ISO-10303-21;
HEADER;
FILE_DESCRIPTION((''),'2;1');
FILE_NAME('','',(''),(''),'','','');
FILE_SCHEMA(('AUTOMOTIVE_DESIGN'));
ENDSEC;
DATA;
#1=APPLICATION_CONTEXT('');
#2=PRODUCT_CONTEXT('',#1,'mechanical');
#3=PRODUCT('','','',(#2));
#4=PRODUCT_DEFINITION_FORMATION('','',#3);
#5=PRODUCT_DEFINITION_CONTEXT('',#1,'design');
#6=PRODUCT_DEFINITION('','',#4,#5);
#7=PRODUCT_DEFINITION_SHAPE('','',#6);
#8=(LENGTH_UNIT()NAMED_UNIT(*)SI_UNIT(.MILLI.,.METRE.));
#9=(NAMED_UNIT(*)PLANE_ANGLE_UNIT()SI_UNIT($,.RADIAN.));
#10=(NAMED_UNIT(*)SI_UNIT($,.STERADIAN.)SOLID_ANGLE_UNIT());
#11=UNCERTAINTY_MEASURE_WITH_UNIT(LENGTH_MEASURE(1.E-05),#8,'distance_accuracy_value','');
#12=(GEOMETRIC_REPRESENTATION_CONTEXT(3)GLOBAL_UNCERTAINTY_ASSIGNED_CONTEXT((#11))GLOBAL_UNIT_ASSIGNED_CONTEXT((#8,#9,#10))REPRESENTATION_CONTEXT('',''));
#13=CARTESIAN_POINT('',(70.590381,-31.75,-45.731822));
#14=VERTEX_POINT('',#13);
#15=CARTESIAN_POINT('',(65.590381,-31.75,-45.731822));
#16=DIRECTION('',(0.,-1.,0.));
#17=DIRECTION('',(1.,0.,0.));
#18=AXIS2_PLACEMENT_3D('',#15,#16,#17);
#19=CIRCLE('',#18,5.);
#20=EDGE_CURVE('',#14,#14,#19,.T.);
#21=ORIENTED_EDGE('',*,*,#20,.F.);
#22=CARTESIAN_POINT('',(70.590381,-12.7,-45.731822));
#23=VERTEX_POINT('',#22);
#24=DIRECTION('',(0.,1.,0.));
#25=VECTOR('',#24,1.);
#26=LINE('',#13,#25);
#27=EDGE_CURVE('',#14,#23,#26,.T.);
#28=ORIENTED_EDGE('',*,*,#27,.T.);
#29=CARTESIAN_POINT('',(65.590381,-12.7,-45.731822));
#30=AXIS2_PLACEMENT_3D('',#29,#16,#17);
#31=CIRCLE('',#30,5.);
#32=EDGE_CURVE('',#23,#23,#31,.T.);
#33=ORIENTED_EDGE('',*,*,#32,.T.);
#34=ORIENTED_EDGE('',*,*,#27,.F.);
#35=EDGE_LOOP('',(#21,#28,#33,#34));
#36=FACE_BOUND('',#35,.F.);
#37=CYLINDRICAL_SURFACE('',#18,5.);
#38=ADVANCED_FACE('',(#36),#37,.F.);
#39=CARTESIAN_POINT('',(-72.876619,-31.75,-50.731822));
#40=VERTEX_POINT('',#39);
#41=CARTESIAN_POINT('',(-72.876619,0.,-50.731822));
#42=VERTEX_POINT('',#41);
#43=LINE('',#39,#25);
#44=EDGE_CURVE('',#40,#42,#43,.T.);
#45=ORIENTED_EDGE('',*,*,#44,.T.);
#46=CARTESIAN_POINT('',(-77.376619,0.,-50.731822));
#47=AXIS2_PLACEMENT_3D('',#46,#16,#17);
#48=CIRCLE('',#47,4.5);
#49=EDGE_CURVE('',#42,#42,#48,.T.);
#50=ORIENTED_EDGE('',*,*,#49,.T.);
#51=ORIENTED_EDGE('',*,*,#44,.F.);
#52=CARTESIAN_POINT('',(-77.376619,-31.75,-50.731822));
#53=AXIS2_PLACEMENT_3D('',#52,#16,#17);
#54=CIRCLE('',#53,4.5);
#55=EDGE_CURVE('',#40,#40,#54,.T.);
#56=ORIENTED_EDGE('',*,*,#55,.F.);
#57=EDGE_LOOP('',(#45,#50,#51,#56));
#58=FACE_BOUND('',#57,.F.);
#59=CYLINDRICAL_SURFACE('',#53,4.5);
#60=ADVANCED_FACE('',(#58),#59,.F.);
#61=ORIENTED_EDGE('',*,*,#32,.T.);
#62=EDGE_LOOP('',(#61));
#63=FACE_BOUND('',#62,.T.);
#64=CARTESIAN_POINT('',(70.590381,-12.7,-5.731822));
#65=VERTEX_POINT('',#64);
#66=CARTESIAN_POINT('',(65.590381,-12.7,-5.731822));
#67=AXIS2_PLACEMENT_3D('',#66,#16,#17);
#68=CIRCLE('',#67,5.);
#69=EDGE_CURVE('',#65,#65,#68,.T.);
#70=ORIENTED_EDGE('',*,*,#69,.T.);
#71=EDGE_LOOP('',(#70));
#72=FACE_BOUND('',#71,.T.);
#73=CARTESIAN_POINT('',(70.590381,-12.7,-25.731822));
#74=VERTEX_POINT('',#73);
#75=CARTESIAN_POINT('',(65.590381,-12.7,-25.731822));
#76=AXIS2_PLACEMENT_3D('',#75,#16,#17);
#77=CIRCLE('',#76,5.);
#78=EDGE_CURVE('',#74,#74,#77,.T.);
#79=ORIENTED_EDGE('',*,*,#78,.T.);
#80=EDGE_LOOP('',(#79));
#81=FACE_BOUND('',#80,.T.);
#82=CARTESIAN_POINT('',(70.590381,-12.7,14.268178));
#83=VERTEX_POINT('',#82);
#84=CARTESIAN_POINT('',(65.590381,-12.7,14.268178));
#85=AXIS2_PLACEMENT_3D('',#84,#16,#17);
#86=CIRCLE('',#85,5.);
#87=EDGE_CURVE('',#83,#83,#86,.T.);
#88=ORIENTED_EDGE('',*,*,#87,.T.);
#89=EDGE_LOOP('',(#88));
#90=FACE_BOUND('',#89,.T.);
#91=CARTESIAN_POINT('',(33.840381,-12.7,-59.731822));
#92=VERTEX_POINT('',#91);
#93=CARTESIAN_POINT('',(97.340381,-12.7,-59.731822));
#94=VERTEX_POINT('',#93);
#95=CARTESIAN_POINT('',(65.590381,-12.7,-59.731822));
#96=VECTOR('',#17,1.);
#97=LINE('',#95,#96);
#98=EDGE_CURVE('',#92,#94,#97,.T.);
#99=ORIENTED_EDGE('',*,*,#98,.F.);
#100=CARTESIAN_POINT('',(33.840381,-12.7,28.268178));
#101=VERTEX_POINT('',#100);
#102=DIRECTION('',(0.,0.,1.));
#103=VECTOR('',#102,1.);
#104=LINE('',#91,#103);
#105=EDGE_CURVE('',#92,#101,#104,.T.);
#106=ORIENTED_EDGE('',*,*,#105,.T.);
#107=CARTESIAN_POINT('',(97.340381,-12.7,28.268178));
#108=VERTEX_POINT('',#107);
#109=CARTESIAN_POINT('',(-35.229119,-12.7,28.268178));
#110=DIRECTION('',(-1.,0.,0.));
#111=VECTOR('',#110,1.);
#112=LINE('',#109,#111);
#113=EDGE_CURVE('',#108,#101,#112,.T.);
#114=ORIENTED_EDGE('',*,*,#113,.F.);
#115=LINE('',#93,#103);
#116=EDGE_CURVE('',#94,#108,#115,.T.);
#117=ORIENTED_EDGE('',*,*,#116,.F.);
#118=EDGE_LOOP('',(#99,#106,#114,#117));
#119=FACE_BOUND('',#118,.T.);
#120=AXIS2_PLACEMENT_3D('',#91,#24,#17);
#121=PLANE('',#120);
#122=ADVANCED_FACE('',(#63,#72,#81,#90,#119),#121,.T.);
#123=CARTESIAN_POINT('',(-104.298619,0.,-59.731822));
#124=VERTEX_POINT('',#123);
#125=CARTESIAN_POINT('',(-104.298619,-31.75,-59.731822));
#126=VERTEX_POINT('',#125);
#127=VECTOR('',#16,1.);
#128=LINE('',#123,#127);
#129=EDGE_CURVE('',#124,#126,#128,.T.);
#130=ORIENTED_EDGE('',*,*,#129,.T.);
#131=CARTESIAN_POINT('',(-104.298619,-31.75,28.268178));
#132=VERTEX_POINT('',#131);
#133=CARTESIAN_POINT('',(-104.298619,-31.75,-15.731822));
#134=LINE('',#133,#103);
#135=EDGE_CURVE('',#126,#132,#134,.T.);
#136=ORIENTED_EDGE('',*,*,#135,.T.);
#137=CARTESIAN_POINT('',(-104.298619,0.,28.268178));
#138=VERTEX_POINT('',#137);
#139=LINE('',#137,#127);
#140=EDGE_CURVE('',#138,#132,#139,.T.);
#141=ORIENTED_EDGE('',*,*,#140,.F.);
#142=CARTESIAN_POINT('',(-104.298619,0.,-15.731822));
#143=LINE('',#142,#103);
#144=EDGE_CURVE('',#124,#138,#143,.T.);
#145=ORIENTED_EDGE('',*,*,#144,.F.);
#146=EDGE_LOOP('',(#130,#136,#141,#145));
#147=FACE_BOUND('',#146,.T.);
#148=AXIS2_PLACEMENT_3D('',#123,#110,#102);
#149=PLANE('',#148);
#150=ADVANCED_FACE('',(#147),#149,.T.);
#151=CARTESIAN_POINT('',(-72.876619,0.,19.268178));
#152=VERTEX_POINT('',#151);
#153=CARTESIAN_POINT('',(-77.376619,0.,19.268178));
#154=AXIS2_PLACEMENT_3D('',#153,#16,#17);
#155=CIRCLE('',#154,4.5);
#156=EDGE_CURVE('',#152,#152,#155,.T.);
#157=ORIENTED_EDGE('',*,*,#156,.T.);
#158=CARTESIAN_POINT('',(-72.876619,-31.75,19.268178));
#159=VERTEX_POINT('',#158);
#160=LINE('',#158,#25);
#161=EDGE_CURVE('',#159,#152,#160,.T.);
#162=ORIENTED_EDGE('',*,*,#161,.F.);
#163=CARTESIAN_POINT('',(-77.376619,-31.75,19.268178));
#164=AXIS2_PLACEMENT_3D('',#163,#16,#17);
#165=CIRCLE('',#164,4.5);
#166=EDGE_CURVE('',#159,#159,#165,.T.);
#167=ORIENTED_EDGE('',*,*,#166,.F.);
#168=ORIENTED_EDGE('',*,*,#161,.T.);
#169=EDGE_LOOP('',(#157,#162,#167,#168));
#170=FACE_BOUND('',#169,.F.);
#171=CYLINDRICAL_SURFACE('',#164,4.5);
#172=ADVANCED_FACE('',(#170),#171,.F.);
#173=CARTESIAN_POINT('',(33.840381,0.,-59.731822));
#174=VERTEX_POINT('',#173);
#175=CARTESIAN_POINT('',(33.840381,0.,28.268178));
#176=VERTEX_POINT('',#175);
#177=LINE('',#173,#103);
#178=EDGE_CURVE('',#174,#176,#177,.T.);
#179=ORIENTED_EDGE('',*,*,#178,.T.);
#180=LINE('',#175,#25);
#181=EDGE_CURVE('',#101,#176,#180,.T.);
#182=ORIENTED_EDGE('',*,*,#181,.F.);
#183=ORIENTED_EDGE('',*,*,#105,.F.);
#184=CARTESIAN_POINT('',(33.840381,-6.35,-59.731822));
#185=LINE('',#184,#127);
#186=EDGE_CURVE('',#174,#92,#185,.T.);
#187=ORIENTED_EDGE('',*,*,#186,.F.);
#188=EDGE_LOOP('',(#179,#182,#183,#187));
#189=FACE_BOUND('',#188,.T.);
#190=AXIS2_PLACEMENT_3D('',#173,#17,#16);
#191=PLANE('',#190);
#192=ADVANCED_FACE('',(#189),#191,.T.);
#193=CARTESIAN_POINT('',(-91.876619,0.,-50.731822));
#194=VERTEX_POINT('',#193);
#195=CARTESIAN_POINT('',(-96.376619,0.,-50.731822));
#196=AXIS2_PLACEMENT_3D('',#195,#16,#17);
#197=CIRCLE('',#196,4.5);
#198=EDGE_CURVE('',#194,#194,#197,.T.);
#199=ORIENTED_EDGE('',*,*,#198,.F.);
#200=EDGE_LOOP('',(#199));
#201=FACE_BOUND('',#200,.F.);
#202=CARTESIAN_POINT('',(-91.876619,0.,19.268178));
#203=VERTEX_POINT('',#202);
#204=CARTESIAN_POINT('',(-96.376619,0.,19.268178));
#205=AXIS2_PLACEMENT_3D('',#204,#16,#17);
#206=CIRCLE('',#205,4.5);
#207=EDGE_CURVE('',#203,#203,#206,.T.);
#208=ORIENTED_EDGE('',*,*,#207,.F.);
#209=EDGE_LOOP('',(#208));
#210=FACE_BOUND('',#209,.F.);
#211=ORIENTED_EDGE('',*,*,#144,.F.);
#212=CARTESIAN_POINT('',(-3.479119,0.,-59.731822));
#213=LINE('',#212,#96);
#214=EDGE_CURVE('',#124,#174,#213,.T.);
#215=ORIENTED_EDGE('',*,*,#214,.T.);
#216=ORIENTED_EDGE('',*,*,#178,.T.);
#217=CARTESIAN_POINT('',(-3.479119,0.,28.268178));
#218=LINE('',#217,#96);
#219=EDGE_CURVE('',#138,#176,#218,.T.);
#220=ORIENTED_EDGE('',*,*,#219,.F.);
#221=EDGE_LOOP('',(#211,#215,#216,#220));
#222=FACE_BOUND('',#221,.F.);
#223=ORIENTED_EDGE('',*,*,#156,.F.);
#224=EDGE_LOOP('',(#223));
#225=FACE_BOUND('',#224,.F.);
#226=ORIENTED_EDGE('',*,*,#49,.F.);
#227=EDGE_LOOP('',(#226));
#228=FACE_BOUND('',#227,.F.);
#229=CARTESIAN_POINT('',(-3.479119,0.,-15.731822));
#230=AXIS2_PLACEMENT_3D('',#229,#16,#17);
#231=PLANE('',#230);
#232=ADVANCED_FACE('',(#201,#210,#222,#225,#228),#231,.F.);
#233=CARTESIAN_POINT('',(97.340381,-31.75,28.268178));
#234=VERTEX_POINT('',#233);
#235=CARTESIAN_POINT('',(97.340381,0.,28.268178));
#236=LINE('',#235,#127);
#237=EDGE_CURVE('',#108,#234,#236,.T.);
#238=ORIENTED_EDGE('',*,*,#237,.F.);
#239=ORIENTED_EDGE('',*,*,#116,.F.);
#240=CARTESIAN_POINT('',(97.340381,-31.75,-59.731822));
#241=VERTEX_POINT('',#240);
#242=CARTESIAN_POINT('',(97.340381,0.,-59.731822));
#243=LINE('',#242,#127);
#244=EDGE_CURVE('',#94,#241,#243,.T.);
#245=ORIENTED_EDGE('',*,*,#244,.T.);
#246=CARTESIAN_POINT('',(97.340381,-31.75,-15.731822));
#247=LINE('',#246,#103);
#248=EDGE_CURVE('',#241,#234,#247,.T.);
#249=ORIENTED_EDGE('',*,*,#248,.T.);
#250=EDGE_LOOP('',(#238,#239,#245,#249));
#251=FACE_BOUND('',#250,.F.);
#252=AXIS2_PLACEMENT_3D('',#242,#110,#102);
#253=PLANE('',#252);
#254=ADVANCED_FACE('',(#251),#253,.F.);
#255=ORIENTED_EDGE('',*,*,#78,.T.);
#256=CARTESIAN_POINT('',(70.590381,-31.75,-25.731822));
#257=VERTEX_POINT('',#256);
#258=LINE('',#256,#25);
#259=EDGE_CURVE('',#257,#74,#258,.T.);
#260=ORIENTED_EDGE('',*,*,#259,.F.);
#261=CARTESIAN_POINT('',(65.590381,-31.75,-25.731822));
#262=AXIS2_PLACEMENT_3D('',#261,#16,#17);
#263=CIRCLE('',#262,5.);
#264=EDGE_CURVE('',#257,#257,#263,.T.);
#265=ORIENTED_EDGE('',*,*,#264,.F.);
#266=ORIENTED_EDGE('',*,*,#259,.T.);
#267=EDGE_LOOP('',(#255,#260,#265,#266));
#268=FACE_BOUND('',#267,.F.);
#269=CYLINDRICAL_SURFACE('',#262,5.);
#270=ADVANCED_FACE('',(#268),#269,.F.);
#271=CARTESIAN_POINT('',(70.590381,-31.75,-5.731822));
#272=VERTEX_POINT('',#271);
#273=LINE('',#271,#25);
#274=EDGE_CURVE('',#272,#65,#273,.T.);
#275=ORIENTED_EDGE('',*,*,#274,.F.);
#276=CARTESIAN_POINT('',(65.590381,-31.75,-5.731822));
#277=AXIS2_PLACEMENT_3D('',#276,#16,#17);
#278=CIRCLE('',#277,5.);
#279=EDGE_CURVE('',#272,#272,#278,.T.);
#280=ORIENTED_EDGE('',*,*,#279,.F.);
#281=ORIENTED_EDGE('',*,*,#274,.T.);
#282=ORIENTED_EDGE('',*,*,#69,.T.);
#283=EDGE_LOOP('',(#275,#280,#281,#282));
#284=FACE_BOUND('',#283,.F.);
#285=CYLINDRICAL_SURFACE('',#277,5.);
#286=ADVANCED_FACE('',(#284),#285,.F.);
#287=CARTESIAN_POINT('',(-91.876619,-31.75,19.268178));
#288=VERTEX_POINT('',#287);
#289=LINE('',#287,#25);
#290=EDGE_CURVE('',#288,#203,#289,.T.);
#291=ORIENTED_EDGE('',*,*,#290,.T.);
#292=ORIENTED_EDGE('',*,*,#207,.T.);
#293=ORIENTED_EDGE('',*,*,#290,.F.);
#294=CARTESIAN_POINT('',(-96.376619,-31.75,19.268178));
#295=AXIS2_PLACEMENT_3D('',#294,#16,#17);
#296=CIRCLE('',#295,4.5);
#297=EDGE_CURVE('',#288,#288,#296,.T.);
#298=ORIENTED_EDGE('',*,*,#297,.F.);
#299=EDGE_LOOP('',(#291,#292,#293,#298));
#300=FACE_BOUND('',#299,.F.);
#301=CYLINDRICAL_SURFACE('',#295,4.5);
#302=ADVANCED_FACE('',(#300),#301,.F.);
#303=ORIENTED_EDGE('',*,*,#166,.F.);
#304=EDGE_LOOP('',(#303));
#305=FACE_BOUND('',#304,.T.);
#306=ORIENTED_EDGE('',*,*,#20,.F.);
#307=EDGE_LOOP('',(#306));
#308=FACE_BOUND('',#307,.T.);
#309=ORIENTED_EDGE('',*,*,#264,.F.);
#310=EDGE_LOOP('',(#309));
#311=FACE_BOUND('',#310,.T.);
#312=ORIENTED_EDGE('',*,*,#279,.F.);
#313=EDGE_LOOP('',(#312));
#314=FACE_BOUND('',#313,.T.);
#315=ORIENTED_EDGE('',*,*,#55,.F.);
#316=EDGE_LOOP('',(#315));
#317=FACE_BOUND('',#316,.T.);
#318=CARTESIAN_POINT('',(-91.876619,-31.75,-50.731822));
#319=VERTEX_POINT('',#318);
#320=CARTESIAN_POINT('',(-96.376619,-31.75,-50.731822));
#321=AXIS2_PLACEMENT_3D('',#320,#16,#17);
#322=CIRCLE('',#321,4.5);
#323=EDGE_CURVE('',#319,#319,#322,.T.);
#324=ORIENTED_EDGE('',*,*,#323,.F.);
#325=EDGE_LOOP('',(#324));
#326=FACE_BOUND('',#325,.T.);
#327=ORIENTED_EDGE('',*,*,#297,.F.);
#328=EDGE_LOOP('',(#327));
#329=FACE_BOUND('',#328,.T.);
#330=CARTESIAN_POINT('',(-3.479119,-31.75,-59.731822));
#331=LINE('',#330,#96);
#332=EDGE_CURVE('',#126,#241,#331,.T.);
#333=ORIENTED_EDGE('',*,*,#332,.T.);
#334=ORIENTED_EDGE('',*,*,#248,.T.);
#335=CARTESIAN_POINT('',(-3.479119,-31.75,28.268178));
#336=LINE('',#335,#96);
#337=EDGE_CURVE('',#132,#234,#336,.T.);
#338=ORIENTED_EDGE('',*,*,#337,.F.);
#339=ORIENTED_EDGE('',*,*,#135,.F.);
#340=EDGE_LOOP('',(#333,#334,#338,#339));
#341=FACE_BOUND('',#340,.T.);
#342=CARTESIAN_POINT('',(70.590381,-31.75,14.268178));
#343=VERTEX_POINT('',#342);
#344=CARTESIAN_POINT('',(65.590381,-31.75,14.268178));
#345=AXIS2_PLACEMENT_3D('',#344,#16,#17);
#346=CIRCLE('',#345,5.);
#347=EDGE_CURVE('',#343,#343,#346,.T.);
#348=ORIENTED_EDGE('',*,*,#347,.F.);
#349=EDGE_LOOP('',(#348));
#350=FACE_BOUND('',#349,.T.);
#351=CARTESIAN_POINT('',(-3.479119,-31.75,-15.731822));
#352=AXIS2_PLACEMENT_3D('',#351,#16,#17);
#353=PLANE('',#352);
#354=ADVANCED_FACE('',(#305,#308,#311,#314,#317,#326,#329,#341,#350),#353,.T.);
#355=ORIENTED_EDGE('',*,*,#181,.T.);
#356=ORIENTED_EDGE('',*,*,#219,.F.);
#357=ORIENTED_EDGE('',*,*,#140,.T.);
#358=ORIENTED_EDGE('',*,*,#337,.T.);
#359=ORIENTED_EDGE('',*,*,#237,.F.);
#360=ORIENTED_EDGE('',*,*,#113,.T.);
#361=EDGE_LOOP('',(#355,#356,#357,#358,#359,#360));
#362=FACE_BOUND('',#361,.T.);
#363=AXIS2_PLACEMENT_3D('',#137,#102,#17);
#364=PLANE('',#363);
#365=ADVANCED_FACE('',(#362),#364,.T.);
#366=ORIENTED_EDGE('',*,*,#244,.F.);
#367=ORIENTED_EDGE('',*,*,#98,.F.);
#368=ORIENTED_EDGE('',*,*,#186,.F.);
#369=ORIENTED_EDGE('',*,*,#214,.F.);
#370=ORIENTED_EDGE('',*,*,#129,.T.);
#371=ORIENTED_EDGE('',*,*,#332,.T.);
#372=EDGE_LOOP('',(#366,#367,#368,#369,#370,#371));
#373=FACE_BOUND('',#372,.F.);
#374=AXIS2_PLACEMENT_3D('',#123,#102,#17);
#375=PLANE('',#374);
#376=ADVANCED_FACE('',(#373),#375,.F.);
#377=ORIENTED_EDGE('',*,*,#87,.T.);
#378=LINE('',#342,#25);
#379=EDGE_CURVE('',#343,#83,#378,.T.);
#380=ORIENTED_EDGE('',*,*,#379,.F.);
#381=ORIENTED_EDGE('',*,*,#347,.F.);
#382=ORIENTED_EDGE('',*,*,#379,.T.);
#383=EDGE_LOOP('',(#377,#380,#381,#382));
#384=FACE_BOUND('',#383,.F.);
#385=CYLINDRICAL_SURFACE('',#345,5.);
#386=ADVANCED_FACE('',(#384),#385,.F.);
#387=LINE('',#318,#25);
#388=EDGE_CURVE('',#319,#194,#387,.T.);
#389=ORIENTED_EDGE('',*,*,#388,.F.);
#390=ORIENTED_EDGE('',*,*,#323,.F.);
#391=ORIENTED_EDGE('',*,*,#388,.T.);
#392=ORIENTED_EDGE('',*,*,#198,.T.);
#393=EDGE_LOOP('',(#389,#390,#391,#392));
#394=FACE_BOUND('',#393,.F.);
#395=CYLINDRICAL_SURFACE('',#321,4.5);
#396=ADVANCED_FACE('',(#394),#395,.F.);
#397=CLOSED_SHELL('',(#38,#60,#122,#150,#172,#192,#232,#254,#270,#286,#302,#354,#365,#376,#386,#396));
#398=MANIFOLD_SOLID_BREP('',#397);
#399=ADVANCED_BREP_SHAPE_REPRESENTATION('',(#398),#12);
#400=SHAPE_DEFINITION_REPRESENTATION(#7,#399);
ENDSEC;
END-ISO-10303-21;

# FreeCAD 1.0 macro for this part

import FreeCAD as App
import Part
import Sketcher
Q = App.Units.Quantity

doc = App.newDocument("Part")
body = doc.addObject("PartDesign::Body", "Body")

sketch1 = body.newObject("Sketcher::SketchObject", "Sketch")
sketch1.AttachmentSupport = (doc.getObject("XZ_Plane"), [""])
sketch1.MapMode = "FlatFace"
sketch1.addGeometry([
    Part.LineSegment(App.Vector(-104, 28, 0), App.Vector(-104, -60, 0)),
    Part.LineSegment(App.Vector(-104, -60, 0), App.Vector(97, -60, 0)),
    Part.LineSegment(App.Vector(97, -60, 0), App.Vector(97, 28, 0)),
    Part.LineSegment(App.Vector(97, 28, 0), App.Vector(-104, 28, 0)),
], False)
sketch1.addConstraint([
    Sketcher.Constraint("Coincident", 0, 2, 1, 1),
    Sketcher.Constraint("Coincident", 1, 2, 2, 1),
    Sketcher.Constraint("Coincident", 2, 2, 3, 1),
    Sketcher.Constraint("Coincident", 3, 2, 0, 1),
    Sketcher.Constraint("Vertical", 0),
    Sketcher.Constraint("Horizontal", 1),
    Sketcher.Constraint("Vertical", 2),
    Sketcher.Constraint("Horizontal", 3),
    Sketcher.Constraint("DistanceY", 0, 2, 0, 1, Q("88 mm")),
    Sketcher.Constraint("DistanceX", 1, 1, 1, 2, Q("201.639 mm")),
    Sketcher.Constraint("DistanceX", 0, 2, -1, 1, Q("104.298619 mm")),
    Sketcher.Constraint("DistanceY", 0, 2, -1, 1, Q("59.731822 mm")),
])
pad1 = body.newObject("PartDesign::Pad", "Pad")
pad1.Profile = sketch1
pad1.Length = 31.75

sketch2 = body.newObject("Sketcher::SketchObject", "Sketch001")
sketch2.AttachmentSupport = (doc.getObject("XY_Plane"), [""])
sketch2.MapMode = "FlatFace"
sketch2.AttachmentOffset = App.Placement(App.Vector(0, 0, -59.731822), App.Rotation())
sketch2.addGeometry([
    Part.LineSegment(App.Vector(34, -13, 0), App.Vector(34, 0, 0)),
    Part.LineSegment(App.Vector(34, 0, 0), App.Vector(97, 0, 0)),
    Part.LineSegment(App.Vector(97, 0, 0), App.Vector(97, -13, 0)),
    Part.LineSegment(App.Vector(97, -13, 0), App.Vector(34, -13, 0)),
], False)
sketch2.addConstraint([
    Sketcher.Constraint("Coincident", 0, 2, 1, 1),
    Sketcher.Constraint("Coincident", 1, 2, 2, 1),
    Sketcher.Constraint("Coincident", 2, 2, 3, 1),
    Sketcher.Constraint("Coincident", 3, 2, 0, 1),
    Sketcher.Constraint("Vertical", 0),
    Sketcher.Constraint("Horizontal", 1),
    Sketcher.Constraint("Vertical", 2),
    Sketcher.Constraint("Horizontal", 3),
    Sketcher.Constraint("PointOnObject", 0, 2, -1),
    Sketcher.Constraint("DistanceX", 1, 1, 1, 2, Q("63.5 mm")),
    Sketcher.Constraint("DistanceY", 0, 1, 0, 2, Q("12.7 mm")),
    Sketcher.Constraint("DistanceX", -1, 1, 0, 2, Q("33.840381 mm")),
])
pocket1 = body.newObject("PartDesign::Pocket", "Pocket")
pocket1.Profile = sketch2
pocket1.Type = "ThroughAll"
pocket1.Reversed = True

sketch3 = body.newObject("Sketcher::SketchObject", "Sketch002")
sketch3.AttachmentSupport = (doc.getObject("XZ_Plane"), [""])
sketch3.MapMode = "FlatFace"
sketch3.AttachmentOffset = App.Placement(App.Vector(0, 0, 31.75), App.Rotation())
sketch3.addGeometry([
    Part.Circle(App.Vector(-96.4, -50.7, 0), App.Vector(0, 0, 1), 4.5),
    Part.Circle(App.Vector(-96.4, 19.3, 0), App.Vector(0, 0, 1), 4.5),
    Part.Circle(App.Vector(-77.4, -50.7, 0), App.Vector(0, 0, 1), 4.5),
    Part.Circle(App.Vector(-77.4, 19.3, 0), App.Vector(0, 0, 1), 4.5),
    Part.Circle(App.Vector(65.6, -45.7, 0), App.Vector(0, 0, 1), 5),
    Part.Circle(App.Vector(65.6, -25.7, 0), App.Vector(0, 0, 1), 5),
    Part.Circle(App.Vector(65.6, -5.7, 0), App.Vector(0, 0, 1), 5),
    Part.Circle(App.Vector(65.6, 14.3, 0), App.Vector(0, 0, 1), 5),
], False)
sketch3.addConstraint([
    Sketcher.Constraint("Equal", 0, 1),
    Sketcher.Constraint("Equal", 1, 2),
    Sketcher.Constraint("Equal", 2, 3),
    Sketcher.Constraint("Equal", 4, 5),
    Sketcher.Constraint("Equal", 5, 6),
    Sketcher.Constraint("Equal", 6, 7),
    Sketcher.Constraint("Horizontal", 0, 3, 2, 3),
    Sketcher.Constraint("Horizontal", 1, 3, 3, 3),
    Sketcher.Constraint("Vertical", 0, 3, 1, 3),
    Sketcher.Constraint("Vertical", 2, 3, 3, 3),
    Sketcher.Constraint("Vertical", 4, 3, 5, 3),
    Sketcher.Constraint("Vertical", 5, 3, 6, 3),
    Sketcher.Constraint("Vertical", 6, 3, 7, 3),
    Sketcher.Constraint("Diameter", 0, Q("9 mm")),
    Sketcher.Constraint("Diameter", 4, Q("10 mm")),
    Sketcher.Constraint("DistanceY", 0, 3, 1, 3, Q("70 mm")),
    Sketcher.Constraint("DistanceX", 0, 3, 2, 3, Q("19 mm")),
    Sketcher.Constraint("DistanceY", 2, 3, 4, 3, Q("5 mm")),
    Sketcher.Constraint("DistanceY", 4, 3, 5, 3, Q("20 mm")),
    Sketcher.Constraint("DistanceY", 5, 3, 6, 3, Q("20 mm")),
    Sketcher.Constraint("DistanceY", 6, 3, 7, 3, Q("20 mm")),
    Sketcher.Constraint("DistanceX", 2, 3, 4, 3, Q("142.967 mm")),
    Sketcher.Constraint("DistanceX", 0, 3, -1, 1, Q("96.376619 mm")),
    Sketcher.Constraint("DistanceY", -1, 1, 7, 3, Q("14.268178 mm")),
])
pocket2 = body.newObject("PartDesign::Pocket", "Pocket001")
pocket2.Profile = sketch3
pocket2.Type = "ThroughAll"

doc.recompute()
